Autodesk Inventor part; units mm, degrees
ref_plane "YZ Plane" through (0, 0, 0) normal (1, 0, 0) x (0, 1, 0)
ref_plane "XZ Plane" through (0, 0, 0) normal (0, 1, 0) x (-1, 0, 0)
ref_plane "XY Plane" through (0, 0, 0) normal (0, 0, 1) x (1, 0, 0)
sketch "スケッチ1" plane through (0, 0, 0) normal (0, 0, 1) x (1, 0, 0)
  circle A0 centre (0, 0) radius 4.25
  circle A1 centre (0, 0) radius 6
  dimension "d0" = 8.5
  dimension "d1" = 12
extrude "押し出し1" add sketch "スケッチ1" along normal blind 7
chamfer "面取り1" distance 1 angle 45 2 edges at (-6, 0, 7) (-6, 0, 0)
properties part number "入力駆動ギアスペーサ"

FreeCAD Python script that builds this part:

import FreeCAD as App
import Part
import Sketcher
from FreeCAD import Vector


def edges_at(feature, points):
    """Names of the edges that pass closest to the given points."""
    edges = feature.Shape.Edges
    near = lambda p: min(range(len(edges)), key=lambda i: edges[i].distToShape(Part.Vertex(*p))[0])
    return sorted({f"Edge{near(p) + 1}" for p in points})

doc = App.newDocument("Part")
params = doc.addObject("Spreadsheet::Sheet", "Params")
for row, (alias, value) in enumerate([
    ("sketch1_diameter", "12 mm"),
    ("sketch1_diameter2", "8.5 mm"),
    ("pad1_length", "7 mm"),
    ("chamfer_size", "1 mm"),
], start=1):
    params.set(f"A{row}", alias)
    params.set(f"B{row}", "=" + value)
    params.setAlias(f"B{row}", alias)

body = doc.addObject("PartDesign::Body", "Body")

# Sketch on XY plane
sketch1 = doc.addObject("Sketcher::SketchObject", "Sketch")
body.addObject(sketch1)
sketch1.AttachmentSupport = (doc.XY_Plane, [""])
sketch1.MapMode = "FlatFace"
sketch1.addGeometry([
    Part.Circle(Vector(0, 0, 0), Vector(0, 0, 1), 6),
    Part.Circle(Vector(0, 0, 0), Vector(0, 0, 1), 4.25),
], False)
sketch1.addConstraint([
    Sketcher.Constraint("Coincident", 0, 3, -1, 1),
    Sketcher.Constraint("Coincident", 1, 3, -1, 1),
    Sketcher.Constraint("Diameter", 0, 12.0),
    Sketcher.Constraint("Diameter", 1, 8.5),
])
sketch1.setExpression("Constraints[2]", "Params.sketch1_diameter")
sketch1.setExpression("Constraints[3]", "Params.sketch1_diameter2")
pad1 = doc.addObject("PartDesign::Pad", "Pad")
body.addObject(pad1)
pad1.Profile = sketch1
pad1.setExpression("Length", "Params.pad1_length")
doc.recompute()

chamfer = doc.addObject("PartDesign::Chamfer", "Chamfer")
body.addObject(chamfer)
chamfer.Base = (pad1, edges_at(pad1, [(-6, 0, 7), (-6, 0, 0)]))
chamfer.setExpression("Size", "Params.chamfer_size")

doc.recompute()
